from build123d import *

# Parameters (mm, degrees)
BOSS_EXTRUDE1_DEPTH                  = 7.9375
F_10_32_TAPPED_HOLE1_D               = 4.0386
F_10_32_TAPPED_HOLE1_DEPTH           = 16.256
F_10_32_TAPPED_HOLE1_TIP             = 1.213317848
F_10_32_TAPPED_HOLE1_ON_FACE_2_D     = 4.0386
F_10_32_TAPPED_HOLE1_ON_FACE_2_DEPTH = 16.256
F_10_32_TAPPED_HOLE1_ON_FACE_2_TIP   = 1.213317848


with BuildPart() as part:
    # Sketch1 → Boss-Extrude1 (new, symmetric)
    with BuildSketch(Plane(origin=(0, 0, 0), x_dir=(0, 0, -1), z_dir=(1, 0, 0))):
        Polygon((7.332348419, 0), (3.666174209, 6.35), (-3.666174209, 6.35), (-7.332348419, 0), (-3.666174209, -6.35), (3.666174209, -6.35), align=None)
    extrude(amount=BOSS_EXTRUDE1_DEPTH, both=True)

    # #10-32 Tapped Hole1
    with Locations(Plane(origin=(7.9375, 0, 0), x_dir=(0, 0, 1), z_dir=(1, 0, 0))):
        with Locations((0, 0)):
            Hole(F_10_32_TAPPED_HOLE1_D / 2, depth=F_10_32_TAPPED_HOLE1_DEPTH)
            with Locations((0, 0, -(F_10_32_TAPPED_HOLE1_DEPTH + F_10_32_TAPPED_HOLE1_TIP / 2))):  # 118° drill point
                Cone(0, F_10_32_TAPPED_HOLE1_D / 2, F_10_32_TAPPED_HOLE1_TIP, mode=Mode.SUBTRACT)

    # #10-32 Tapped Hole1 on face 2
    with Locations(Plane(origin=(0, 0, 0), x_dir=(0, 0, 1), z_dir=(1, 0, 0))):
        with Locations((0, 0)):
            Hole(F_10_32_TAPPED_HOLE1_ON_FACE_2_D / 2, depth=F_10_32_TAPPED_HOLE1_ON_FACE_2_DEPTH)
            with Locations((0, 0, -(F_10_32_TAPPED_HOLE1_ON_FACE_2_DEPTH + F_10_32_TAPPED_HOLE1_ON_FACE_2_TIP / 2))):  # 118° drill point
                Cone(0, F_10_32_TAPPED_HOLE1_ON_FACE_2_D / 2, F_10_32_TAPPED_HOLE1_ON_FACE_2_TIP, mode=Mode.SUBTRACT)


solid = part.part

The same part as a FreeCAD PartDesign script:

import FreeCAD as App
import Part
import Sketcher

V = App.Vector
Q = App.Units.Quantity

doc = App.newDocument("Part")
body = doc.addObject("PartDesign::Body", "Body")

sketch1 = body.newObject("Sketcher::SketchObject", "Sketch")
sketch1.AttachmentSupport = (doc.getObject("YZ_Plane"), [""])
sketch1.MapMode = "FlatFace"
sketch1.addGeometry([
    Part.LineSegment(V(0, -7, 0), V(6, -4, 0)),
    Part.LineSegment(V(6, -4, 0), V(6, 4, 0)),
    Part.LineSegment(V(6, 4, 0), V(0, 7, 0)),
    Part.LineSegment(V(0, 7, 0), V(-6, 4, 0)),
    Part.LineSegment(V(-6, 4, 0), V(-6, -4, 0)),
    Part.LineSegment(V(-6, -4, 0), V(0, -7, 0)),
], False)
sketch1.addConstraint([
    Sketcher.Constraint("Coincident", 0, 2, 1, 1),
    Sketcher.Constraint("Coincident", 1, 2, 2, 1),
    Sketcher.Constraint("Coincident", 2, 2, 3, 1),
    Sketcher.Constraint("Coincident", 3, 2, 4, 1),
    Sketcher.Constraint("Coincident", 4, 2, 5, 1),
    Sketcher.Constraint("Coincident", 5, 2, 0, 1),
    Sketcher.Constraint("Vertical", 1),
    Sketcher.Constraint("Vertical", 4),
    Sketcher.Constraint("Symmetric", 0, 2, 3, 2, -1, 1),
    Sketcher.Constraint("Symmetric", 2, 2, 5, 2, -1, 1),
    Sketcher.Constraint("PointOnObject", 2, 2, -2),
    Sketcher.Constraint("Parallel", 2, 5),
    Sketcher.Constraint("Horizontal", 1, 2, 3, 2),
    Sketcher.Constraint("Angle", 0, Q("30 deg")),
    Sketcher.Constraint("DistanceX", 3, 2, 1, 2, Q("0.5 in")),
    Sketcher.Constraint("DistanceY", 1, 1, 1, 2, 7.332348),
])
pad1 = body.newObject("PartDesign::Pad", "Pad")
pad1.Profile = sketch1
pad1.Length = Q("0.625 in")
pad1.Midplane = True

sketch2 = body.newObject("Sketcher::SketchObject", "Sketch001")
sketch2.AttachmentSupport = (doc.getObject("YZ_Plane"), [""])
sketch2.MapMode = "FlatFace"
sketch2.AttachmentOffset = App.Placement(V(0, 0, 0.3125 * 25.4), App.Rotation())
sketch2.addGeometry(Part.Circle(V(0, 0, 0), V(0, 0, 1), 2), False)
sketch2.addConstraint([
    Sketcher.Constraint("Coincident", 0, 3, -1, 1),
    Sketcher.Constraint("Diameter", 0, Q("0.159 in")),
])
doc.recompute()
hole = body.newObject("PartDesign::Hole", "Hole")
hole.Profile = sketch2
hole.ThreadType = "None"
hole.Diameter = Q("0.159 in")
hole.DepthType = "Dimension"
hole.Depth = Q("0.64 in")
hole.DrillPoint = "Angled"
hole.DrillPointAngle = 118

sketch3 = body.newObject("Sketcher::SketchObject", "Sketch002")
sketch3.AttachmentSupport = (doc.getObject("YZ_Plane"), [""])
sketch3.MapMode = "FlatFace"
sketch3.addGeometry(Part.Circle(V(0, 0, 0), V(0, 0, 1), 2), False)
sketch3.addConstraint([
    Sketcher.Constraint("Coincident", 0, 3, -1, 1),
    Sketcher.Constraint("Diameter", 0, Q("0.159 in")),
])
doc.recompute()
hole2 = body.newObject("PartDesign::Hole", "Hole001")
hole2.Profile = sketch3
hole2.ThreadType = "None"
hole2.Diameter = Q("0.159 in")
hole2.DepthType = "Dimension"
hole2.Depth = Q("0.64 in")
hole2.DrillPoint = "Angled"
hole2.DrillPointAngle = 118

doc.recompute()
